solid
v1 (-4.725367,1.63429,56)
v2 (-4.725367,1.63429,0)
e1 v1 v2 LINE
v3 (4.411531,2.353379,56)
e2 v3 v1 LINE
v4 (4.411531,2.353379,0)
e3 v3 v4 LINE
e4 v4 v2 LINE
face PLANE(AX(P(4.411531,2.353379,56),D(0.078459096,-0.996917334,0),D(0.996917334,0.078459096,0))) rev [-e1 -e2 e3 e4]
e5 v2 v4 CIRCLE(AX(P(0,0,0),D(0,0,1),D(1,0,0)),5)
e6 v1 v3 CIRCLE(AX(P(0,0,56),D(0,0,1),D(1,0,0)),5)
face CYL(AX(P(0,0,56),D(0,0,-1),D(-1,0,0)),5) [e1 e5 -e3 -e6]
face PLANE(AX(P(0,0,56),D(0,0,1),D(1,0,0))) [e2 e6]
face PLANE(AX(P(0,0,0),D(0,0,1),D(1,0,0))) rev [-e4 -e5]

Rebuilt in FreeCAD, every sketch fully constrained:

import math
import FreeCAD as App
import Part
import Sketcher
Q = App.Units.Quantity

doc = App.newDocument("Part")
body = doc.addObject("PartDesign::Body", "Body")

# Sketch on XY plane
sketch1 = doc.addObject("Sketcher::SketchObject", "Sketch")
body.addObject(sketch1)
sketch1.AttachmentSupport = (doc.XY_Plane, [""])
sketch1.MapMode = "FlatFace"
sketch1.addGeometry([
    Part.LineSegment(App.Vector(4.411531, 2.353379, 0), App.Vector(-4.725367, 1.63429, 0)),
    Part.ArcOfCircle(Part.Circle(App.Vector(0, 0, 0), App.Vector(0, 0, 1), 5), math.radians(160.921822), math.radians(388.078178)),
], False)
sketch1.addConstraint([
    Sketcher.Constraint("Coincident", 0, 1, 1, 2),
    Sketcher.Constraint("Coincident", 1, 1, 0, 2),
    Sketcher.Constraint("Coincident", 1, 3, -1, 1),
    Sketcher.Constraint("Radius", 1, Q("5 mm")),
    Sketcher.Constraint("Angle", 0, Q("-175.5 deg")),
    Sketcher.Constraint("DistanceX", 1, 1, 0, 1, Q("9.136898 mm")),
])
pad1 = doc.addObject("PartDesign::Pad", "Pad")
body.addObject(pad1)
pad1.Profile = sketch1
pad1.Length = 56

doc.recompute()
